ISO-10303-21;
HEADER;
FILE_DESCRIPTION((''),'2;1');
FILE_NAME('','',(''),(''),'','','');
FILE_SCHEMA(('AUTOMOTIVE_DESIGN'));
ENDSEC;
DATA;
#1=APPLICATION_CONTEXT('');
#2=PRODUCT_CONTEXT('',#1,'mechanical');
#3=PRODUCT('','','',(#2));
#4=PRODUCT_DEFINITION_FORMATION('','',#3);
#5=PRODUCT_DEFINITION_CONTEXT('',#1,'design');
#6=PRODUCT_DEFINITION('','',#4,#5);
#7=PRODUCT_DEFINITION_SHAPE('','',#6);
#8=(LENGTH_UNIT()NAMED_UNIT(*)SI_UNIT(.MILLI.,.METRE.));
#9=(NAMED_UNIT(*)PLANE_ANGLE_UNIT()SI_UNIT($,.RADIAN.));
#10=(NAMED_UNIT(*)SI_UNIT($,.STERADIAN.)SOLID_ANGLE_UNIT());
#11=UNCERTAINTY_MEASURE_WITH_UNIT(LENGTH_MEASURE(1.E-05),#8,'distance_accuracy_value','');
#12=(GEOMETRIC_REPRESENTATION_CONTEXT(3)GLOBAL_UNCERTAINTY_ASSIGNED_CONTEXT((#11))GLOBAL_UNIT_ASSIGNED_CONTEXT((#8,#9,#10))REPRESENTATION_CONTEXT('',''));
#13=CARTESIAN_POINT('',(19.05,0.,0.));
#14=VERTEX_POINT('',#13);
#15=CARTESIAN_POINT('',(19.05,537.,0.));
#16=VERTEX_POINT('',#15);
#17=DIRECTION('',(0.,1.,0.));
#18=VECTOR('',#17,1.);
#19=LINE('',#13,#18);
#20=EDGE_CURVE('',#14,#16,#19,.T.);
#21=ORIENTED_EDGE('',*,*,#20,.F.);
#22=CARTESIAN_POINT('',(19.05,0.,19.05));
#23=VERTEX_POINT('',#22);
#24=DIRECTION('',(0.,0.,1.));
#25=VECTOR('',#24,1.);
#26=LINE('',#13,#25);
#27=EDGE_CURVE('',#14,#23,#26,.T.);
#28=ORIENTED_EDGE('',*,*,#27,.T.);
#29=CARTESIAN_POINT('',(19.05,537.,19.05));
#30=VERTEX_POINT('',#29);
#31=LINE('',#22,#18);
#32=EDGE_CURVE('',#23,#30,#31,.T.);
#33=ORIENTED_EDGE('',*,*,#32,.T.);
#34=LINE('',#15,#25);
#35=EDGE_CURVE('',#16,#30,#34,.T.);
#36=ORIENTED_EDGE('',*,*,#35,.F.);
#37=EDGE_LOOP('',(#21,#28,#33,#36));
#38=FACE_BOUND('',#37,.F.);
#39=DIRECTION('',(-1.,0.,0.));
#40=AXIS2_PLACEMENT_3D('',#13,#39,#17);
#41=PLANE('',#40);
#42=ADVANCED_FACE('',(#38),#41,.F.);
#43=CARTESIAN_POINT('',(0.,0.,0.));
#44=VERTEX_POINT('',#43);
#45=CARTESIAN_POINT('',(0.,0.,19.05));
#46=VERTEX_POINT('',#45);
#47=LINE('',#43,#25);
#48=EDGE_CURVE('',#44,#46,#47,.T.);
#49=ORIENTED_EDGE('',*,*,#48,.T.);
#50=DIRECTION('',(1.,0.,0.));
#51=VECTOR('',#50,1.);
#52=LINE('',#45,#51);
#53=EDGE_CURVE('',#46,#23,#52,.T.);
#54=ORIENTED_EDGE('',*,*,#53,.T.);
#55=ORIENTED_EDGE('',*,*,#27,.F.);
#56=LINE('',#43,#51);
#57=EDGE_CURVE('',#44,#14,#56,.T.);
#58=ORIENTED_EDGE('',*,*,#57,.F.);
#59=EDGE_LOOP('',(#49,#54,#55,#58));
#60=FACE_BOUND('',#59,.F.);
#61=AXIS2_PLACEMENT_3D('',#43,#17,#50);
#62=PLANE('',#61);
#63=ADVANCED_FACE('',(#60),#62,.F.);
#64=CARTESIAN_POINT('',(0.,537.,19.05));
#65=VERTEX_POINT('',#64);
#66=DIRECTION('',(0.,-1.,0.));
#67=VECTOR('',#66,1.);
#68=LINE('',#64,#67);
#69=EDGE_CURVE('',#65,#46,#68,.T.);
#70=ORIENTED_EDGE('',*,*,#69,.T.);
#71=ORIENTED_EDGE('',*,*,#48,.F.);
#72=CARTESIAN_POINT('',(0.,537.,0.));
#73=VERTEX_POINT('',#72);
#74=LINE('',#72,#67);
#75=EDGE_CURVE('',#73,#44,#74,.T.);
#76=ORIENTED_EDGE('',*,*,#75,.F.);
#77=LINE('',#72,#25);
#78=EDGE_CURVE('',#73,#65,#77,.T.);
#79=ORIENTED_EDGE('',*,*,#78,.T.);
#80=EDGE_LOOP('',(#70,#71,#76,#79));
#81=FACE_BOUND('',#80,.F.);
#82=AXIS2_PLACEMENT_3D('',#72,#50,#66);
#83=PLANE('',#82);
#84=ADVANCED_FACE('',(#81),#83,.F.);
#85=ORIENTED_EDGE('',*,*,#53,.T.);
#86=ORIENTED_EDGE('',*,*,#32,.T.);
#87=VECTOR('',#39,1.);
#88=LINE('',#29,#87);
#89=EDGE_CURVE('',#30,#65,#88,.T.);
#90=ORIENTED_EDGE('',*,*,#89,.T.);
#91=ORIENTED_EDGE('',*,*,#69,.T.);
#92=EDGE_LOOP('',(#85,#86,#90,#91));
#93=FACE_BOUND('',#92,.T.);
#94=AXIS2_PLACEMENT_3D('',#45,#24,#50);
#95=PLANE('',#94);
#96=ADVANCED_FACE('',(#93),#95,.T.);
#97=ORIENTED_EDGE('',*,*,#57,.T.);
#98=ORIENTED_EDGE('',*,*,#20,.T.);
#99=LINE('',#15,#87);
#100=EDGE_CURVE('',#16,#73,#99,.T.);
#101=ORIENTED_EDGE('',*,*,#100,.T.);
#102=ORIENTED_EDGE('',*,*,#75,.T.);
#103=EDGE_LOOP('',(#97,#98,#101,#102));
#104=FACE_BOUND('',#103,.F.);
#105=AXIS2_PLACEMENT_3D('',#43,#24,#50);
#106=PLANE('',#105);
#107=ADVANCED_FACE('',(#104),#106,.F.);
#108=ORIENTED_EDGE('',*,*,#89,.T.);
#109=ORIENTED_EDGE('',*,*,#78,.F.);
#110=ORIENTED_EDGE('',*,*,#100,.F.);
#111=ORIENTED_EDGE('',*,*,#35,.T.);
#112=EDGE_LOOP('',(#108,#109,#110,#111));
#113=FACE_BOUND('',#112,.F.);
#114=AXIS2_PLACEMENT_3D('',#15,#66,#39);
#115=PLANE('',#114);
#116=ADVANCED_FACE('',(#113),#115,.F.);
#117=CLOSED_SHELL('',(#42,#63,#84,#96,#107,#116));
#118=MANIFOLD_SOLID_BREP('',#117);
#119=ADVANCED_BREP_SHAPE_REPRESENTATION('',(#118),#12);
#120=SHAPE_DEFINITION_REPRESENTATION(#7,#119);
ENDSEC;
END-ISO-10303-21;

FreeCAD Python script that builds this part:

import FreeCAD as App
import Part
import Sketcher
Q = App.Units.Quantity


def add_polygon(sketch, points):
    """Adds a closed chain of lines whose ends are joined by coincident constraints."""
    first, n = sketch.GeometryCount, len(points)
    for a, b in zip(points, points[1:] + points[:1]):
        sketch.addGeometry(Part.LineSegment(App.Vector(*a, 0), App.Vector(*b, 0)), False)
    for i in range(n):
        sketch.addConstraint(Sketcher.Constraint("Coincident", first + i, 2, first + (i + 1) % n, 1))

doc = App.newDocument("Part")
params = doc.addObject("Spreadsheet::Sheet", "Params")
for row, (alias, value) in enumerate([
    ("sketch1_height", "537 mm"),
    ("sketch1_width", "19.05 mm"),
    ("pad1_length", "19.05 mm"),
], start=1):
    params.set(f"A{row}", alias)
    params.set(f"B{row}", "=" + value)
    params.setAlias(f"B{row}", alias)

body = doc.addObject("PartDesign::Body", "Body")

# Sketch on XY plane
sketch1 = doc.addObject("Sketcher::SketchObject", "Sketch")
body.addObject(sketch1)
sketch1.AttachmentSupport = (doc.XY_Plane, [""])
sketch1.MapMode = "FlatFace"
add_polygon(sketch1, [(0, 537), (0, 0), (19, 0), (19, 537)])  # lines 0-3
sketch1.addConstraint([
    Sketcher.Constraint("Vertical", 0),
    Sketcher.Constraint("Horizontal", 1),
    Sketcher.Constraint("Vertical", 2),
    Sketcher.Constraint("Horizontal", 3),
    Sketcher.Constraint("Coincident", 0, 2, -1, 1),
    Sketcher.Constraint("DistanceY", 0, 2, 0, 1, Q("537 mm")),
    Sketcher.Constraint("DistanceX", 1, 1, 1, 2, Q("19.05 mm")),
])
sketch1.setExpression("Constraints[9]", "Params.sketch1_height")
sketch1.setExpression("Constraints[10]", "Params.sketch1_width")
pad1 = doc.addObject("PartDesign::Pad", "Pad")
body.addObject(pad1)
pad1.Profile = sketch1
pad1.setExpression("Length", "Params.pad1_length")

doc.recompute()
